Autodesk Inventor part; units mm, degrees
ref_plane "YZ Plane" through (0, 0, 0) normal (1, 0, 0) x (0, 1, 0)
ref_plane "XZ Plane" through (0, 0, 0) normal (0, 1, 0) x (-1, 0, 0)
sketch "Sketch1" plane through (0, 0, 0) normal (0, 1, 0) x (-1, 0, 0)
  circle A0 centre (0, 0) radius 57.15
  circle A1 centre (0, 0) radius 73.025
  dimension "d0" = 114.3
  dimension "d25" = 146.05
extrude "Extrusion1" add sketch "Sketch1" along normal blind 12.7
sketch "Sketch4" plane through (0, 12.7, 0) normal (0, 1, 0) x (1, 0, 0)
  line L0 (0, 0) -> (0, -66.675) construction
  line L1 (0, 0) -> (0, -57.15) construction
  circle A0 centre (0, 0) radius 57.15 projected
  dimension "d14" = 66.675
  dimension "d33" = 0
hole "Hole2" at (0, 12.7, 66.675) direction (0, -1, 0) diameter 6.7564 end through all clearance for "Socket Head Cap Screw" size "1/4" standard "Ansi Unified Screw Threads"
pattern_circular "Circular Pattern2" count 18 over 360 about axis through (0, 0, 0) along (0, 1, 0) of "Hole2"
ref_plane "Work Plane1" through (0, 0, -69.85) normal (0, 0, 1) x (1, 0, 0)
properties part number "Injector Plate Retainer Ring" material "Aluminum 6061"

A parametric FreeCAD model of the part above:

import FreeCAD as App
import Part
import Sketcher
Q = App.Units.Quantity

doc = App.newDocument("Part")
body = doc.addObject("PartDesign::Body", "Body")

# Sketch on XZ plane
sketch1 = doc.addObject("Sketcher::SketchObject", "Sketch")
body.addObject(sketch1)
sketch1.AttachmentSupport = (doc.XZ_Plane, [""])
sketch1.MapMode = "FlatFace"
sketch1.addGeometry([
    Part.Circle(App.Vector(0, 0, 0), App.Vector(0, 0, 1), 73),
    Part.Circle(App.Vector(0, 0, 0), App.Vector(0, 0, 1), 57),
], False)
sketch1.addConstraint([
    Sketcher.Constraint("Coincident", 0, 3, -1, 1),
    Sketcher.Constraint("Coincident", 1, 3, -1, 1),
    Sketcher.Constraint("Diameter", 1, Q("4.5 in")),
    Sketcher.Constraint("Diameter", 0, Q("5.75 in")),
])
pad1 = doc.addObject("PartDesign::Pad", "Pad")
body.addObject(pad1)
pad1.Profile = sketch1
pad1.Length = Q("0.5 in")
pad1.Reversed = True

# Sketch on XZ plane
sketch2 = doc.addObject("Sketcher::SketchObject", "Sketch001")
body.addObject(sketch2)
sketch2.AttachmentSupport = (doc.XZ_Plane, [""])
sketch2.MapMode = "FlatFace"
sketch2.AttachmentOffset = App.Placement(App.Vector(0, 0, -0.5 * 25.4), App.Rotation())
sketch2.addGeometry(Part.Circle(App.Vector(0, 66.7, 0), App.Vector(0, 0, 1), 3.4), False)
sketch2.addConstraint([
    Sketcher.Constraint("PointOnObject", 0, 3, -2),
    Sketcher.Constraint("Diameter", 0, Q("0.266 in")),
    Sketcher.Constraint("DistanceY", -1, 1, 0, 3, Q("2.625 in")),
])
doc.recompute()
hole = doc.addObject("PartDesign::Hole", "Hole")
body.addObject(hole)
hole.Profile = sketch2
hole.ThreadType = "None"
hole.Diameter = Q("0.266 in")
hole.DepthType = "ThroughAll"
hole.Reversed = True
doc.recompute()

polarpattern = doc.addObject("PartDesign::PolarPattern", "PolarPattern")
body.addObject(polarpattern)
polarpattern.Originals = [hole]
polarpattern.Axis = (doc.Y_Axis, [""])
polarpattern.Angle = 360
polarpattern.Occurrences = 18
body.Tip = polarpattern

doc.recompute()
